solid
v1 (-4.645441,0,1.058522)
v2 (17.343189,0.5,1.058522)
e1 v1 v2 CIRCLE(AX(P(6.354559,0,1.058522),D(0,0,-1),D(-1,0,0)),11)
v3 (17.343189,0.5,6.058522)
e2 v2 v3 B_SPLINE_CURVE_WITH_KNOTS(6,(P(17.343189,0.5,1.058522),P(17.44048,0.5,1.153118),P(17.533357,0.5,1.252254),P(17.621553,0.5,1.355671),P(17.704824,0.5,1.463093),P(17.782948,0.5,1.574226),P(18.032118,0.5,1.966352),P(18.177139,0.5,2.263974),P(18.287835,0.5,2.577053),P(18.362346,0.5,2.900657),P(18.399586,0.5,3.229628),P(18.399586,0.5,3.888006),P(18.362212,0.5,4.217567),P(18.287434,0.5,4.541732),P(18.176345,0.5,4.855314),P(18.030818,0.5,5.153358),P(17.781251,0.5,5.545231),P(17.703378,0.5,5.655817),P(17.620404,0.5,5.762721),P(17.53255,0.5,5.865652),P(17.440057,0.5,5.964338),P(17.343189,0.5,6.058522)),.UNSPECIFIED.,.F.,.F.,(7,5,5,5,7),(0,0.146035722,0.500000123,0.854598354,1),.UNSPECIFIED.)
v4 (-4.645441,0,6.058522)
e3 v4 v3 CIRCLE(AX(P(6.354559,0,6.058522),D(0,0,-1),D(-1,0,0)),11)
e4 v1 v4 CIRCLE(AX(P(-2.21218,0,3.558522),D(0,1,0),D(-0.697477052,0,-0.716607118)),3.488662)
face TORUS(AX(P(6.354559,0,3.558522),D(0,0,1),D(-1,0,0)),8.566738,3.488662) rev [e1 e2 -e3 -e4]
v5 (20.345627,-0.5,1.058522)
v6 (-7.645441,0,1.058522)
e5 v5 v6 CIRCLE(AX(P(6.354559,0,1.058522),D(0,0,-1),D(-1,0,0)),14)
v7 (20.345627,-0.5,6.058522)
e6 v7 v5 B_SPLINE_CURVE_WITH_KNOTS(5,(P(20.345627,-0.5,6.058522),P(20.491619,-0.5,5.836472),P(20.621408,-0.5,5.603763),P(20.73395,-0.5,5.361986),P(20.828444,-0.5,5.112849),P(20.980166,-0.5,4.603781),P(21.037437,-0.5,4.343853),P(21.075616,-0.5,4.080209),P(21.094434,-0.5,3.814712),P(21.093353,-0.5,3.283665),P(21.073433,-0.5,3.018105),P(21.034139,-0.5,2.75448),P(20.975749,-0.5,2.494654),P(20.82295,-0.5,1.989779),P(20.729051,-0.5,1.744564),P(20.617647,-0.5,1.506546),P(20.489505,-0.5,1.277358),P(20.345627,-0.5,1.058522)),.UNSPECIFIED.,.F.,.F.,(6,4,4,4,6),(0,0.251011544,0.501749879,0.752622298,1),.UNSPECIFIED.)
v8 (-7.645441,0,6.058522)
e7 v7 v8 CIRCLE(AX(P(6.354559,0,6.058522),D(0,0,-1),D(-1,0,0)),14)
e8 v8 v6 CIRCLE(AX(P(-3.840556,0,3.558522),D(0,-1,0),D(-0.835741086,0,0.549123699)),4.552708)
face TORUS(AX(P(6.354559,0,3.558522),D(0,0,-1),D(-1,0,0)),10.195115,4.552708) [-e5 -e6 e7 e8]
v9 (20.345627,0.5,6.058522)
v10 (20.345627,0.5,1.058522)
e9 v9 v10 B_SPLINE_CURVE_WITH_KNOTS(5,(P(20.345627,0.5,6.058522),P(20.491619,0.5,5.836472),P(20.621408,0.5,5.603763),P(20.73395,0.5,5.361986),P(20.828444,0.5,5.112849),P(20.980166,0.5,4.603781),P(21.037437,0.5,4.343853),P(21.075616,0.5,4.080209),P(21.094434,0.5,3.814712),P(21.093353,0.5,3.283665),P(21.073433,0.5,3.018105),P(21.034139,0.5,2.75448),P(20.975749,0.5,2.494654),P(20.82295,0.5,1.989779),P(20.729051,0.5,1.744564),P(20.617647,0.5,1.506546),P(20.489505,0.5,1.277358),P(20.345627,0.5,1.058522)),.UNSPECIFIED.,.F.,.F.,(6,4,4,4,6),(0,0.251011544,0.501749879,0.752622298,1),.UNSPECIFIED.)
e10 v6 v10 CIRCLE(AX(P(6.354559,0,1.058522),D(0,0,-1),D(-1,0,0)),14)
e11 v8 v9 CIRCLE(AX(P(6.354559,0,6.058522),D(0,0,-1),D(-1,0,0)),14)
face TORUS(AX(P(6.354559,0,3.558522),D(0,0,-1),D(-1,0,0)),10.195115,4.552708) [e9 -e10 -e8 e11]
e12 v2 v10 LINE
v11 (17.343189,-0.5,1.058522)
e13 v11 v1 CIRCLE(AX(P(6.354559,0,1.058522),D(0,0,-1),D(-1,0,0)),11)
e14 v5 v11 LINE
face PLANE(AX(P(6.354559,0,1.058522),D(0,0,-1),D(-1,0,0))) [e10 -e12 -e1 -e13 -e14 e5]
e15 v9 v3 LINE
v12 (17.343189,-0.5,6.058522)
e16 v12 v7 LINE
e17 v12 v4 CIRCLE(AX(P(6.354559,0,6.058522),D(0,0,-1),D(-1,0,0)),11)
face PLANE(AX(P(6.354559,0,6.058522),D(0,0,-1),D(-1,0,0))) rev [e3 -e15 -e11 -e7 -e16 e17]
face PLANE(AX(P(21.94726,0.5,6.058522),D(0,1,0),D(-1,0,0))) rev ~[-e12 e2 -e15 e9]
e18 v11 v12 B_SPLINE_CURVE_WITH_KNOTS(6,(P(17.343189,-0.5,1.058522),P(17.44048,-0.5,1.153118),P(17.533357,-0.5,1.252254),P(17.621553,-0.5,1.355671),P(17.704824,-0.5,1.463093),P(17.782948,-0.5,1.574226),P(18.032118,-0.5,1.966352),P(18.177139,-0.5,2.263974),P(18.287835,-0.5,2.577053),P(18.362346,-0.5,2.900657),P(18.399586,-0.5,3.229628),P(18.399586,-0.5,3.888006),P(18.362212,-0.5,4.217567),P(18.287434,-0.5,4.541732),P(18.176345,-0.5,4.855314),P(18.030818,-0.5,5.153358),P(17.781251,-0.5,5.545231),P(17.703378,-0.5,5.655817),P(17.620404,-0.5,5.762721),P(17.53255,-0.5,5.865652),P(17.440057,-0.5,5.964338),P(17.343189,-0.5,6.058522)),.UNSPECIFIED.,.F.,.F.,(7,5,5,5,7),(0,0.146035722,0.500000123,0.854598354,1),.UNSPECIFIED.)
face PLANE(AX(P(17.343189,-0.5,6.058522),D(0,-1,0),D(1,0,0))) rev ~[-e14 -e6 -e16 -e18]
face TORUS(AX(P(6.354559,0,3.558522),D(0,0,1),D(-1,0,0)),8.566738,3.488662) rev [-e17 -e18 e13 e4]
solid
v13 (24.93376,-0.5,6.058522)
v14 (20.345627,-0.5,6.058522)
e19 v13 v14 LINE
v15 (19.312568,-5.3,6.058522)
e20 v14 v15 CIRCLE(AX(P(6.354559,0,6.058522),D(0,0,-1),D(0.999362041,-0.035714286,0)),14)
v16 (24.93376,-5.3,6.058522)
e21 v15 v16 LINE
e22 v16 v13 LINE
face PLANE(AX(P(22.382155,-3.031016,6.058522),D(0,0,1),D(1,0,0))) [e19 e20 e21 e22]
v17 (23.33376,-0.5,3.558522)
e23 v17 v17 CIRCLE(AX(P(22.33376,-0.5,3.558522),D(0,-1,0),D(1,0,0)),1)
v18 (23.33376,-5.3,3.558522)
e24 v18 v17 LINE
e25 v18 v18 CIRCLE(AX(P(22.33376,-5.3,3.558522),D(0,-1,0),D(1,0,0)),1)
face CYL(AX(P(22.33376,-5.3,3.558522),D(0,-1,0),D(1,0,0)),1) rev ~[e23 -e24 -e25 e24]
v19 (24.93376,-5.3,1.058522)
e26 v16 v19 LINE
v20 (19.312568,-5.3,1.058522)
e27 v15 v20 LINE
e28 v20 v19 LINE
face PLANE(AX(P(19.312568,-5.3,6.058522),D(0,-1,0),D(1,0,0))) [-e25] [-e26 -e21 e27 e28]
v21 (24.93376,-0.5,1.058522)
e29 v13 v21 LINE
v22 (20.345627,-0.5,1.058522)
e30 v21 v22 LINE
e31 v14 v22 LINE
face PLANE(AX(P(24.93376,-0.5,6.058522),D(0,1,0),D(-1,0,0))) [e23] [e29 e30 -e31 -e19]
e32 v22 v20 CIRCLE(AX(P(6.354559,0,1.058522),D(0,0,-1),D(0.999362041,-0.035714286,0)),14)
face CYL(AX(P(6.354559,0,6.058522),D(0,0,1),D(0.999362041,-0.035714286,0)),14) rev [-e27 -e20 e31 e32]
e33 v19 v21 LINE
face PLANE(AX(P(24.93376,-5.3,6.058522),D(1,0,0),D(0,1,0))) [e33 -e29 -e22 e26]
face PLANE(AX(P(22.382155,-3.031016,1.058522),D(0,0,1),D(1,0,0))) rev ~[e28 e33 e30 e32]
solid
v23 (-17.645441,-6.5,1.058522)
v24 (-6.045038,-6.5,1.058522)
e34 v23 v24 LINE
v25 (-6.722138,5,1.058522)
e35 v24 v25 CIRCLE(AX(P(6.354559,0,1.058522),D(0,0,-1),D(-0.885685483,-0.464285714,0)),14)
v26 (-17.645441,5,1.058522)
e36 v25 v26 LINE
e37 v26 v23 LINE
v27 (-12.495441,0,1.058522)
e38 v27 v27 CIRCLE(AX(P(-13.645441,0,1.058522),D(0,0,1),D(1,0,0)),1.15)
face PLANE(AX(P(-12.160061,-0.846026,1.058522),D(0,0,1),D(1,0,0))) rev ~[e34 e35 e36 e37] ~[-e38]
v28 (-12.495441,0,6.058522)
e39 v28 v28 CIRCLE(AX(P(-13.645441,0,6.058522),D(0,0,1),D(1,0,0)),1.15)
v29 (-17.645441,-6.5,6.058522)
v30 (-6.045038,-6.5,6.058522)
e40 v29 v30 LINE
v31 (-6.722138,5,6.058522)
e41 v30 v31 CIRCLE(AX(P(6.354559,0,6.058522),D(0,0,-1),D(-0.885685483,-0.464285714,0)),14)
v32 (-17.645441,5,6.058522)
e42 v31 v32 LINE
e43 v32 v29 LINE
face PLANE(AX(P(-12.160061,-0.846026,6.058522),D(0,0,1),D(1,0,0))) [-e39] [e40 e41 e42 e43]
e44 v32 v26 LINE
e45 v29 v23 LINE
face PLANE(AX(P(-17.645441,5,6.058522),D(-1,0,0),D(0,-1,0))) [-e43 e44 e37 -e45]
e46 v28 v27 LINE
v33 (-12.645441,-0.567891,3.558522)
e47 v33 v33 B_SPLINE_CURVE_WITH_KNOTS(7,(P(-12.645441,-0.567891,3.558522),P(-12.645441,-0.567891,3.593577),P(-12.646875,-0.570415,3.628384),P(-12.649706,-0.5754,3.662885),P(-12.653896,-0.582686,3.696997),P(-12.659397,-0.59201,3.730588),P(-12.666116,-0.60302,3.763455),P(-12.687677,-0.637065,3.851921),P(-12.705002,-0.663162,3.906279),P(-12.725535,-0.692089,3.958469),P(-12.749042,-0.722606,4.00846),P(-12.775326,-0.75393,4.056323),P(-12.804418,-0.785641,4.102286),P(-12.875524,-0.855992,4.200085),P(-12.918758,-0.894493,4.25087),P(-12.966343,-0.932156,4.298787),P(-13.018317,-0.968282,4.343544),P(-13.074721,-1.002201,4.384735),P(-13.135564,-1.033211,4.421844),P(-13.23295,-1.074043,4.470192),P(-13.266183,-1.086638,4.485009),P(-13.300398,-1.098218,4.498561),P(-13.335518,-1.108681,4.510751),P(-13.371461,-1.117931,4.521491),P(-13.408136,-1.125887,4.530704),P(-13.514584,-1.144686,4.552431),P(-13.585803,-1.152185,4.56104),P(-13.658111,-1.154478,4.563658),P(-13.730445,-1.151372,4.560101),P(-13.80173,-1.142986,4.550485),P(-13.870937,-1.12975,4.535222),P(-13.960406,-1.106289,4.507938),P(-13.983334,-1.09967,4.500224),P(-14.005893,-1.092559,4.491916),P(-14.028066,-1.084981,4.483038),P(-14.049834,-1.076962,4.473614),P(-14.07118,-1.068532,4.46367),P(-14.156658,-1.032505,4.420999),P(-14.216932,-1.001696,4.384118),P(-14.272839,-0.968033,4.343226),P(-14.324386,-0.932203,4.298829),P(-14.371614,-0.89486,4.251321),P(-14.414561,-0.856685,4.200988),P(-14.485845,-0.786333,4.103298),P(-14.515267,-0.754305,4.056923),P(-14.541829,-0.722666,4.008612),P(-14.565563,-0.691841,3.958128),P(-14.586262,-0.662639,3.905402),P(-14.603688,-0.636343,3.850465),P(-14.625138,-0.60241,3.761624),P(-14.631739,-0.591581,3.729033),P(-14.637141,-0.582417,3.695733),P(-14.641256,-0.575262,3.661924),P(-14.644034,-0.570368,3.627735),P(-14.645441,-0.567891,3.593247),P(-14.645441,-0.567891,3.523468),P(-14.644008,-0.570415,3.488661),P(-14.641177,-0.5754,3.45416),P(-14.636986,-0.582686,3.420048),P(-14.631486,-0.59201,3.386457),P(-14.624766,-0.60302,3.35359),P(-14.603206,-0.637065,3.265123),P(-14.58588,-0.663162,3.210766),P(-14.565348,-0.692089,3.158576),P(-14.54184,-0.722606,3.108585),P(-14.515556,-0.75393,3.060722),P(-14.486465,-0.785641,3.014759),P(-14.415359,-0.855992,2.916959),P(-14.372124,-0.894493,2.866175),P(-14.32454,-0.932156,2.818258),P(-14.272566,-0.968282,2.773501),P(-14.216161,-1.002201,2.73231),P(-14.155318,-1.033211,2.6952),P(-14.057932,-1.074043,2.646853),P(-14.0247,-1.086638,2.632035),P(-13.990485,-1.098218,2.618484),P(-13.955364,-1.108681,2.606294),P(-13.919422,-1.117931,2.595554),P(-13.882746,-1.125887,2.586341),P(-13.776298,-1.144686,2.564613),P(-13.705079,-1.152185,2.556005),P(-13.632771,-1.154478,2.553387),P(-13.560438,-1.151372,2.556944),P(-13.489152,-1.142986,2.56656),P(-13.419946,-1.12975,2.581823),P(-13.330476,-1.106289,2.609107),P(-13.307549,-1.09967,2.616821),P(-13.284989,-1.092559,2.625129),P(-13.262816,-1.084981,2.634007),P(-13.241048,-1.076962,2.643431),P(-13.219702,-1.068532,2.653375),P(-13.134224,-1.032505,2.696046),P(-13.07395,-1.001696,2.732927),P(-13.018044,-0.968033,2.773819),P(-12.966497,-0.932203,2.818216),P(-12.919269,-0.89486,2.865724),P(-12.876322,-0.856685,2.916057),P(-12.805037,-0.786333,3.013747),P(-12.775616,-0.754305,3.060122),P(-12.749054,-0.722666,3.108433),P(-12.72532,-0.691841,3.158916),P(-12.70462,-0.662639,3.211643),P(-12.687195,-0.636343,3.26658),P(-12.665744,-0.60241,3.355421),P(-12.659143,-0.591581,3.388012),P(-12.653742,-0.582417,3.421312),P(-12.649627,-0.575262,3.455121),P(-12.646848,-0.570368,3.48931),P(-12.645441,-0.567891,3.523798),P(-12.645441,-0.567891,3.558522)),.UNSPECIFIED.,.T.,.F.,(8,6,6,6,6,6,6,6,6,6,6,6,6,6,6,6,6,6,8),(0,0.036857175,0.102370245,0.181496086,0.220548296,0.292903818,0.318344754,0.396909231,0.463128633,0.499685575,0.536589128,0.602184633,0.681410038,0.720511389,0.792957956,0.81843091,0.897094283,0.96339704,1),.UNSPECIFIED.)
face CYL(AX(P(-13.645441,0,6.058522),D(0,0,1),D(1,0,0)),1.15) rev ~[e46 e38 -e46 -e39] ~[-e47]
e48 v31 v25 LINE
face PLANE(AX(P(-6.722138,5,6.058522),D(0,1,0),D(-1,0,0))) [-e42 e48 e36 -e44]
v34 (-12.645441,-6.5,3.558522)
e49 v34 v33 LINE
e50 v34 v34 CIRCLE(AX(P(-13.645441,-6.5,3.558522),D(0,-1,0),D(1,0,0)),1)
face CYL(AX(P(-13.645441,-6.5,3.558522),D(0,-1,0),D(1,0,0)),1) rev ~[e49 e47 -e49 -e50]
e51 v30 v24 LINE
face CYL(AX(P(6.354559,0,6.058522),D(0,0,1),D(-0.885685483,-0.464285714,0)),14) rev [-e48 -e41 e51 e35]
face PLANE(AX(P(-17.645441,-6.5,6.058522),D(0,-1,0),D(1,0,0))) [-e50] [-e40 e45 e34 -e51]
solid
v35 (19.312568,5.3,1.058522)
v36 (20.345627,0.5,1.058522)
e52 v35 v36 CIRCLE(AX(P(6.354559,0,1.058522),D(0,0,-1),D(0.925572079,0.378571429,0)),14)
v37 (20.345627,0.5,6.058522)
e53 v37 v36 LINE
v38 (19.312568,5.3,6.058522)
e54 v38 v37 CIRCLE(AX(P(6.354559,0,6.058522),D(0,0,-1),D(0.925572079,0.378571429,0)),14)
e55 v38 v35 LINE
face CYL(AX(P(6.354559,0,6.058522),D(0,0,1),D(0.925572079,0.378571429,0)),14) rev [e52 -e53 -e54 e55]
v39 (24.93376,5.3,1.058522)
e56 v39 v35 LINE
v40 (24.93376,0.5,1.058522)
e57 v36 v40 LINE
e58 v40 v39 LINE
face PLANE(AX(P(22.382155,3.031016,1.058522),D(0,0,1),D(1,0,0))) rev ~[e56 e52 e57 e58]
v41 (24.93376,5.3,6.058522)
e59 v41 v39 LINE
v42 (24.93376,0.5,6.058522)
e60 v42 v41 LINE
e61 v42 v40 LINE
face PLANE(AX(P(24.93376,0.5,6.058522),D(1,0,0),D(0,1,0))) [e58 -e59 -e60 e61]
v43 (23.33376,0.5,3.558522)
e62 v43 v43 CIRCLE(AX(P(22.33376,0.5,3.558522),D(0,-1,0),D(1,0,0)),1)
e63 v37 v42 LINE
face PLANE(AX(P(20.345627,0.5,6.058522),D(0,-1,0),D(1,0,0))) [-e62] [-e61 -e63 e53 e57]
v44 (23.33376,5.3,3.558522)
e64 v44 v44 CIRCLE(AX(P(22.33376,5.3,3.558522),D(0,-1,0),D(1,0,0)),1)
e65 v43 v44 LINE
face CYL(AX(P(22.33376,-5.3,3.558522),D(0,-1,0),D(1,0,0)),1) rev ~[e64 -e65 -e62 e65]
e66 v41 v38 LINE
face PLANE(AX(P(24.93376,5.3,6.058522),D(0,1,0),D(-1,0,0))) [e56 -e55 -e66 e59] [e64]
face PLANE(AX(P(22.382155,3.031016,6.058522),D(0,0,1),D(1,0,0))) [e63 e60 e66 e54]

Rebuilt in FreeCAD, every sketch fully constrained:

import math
import FreeCAD as App
import Part
import Sketcher
Q = App.Units.Quantity

doc = App.newDocument("Part")
body = doc.addObject("PartDesign::Body", "Body")

# Sketch on XZ plane
sketch1 = body.newObject("Sketcher::SketchObject", "Sketch")
sketch1.AttachmentSupport = (doc.getObject("XZ_Plane"), [""])
sketch1.MapMode = "FlatFace"
sketch1.addGeometry([
    Part.ArcOfCircle(Part.Circle(App.Vector(-2.2, 3.6, 0), App.Vector(0, 0, 1), 3.5), math.radians(134), math.radians(226)),
    Part.LineSegment(App.Vector(-4.6, 6.1, 0), App.Vector(-7.6, 6.1, 0)),
    Part.ArcOfCircle(Part.Circle(App.Vector(-3.8, 3.6, 0), App.Vector(0, 0, 1), 4.6), math.radians(147), math.radians(213)),
    Part.LineSegment(App.Vector(-7.6, 1.1, 0), App.Vector(-4.6, 1.1, 0)),
], False)
sketch1.addGeometry(Part.LineSegment(App.Vector(6.4, 6.1, 0), App.Vector(6.4, 1.1, 0)), True)  # axis
sketch1.addConstraint([
    Sketcher.Constraint("Coincident", 0, 1, 1, 1),
    Sketcher.Constraint("Coincident", 1, 2, 2, 1),
    Sketcher.Constraint("Coincident", 2, 2, 3, 1),
    Sketcher.Constraint("Coincident", 3, 2, 0, 2),
    Sketcher.Constraint("Horizontal", 1),
    Sketcher.Constraint("Horizontal", 3),
    Sketcher.Constraint("Vertical", 4),
    Sketcher.Constraint("Horizontal", 0, 3, 2, 3),
    Sketcher.Constraint("Horizontal", 1, 2, 4, 1),
    Sketcher.Constraint("Horizontal", 3, 2, 4, 2),
    Sketcher.Constraint("Vertical", 1, 2, 2, 2),
    Sketcher.Constraint("DistanceX", 1, 2, 1, 1, Q("3 mm")),
    Sketcher.Constraint("DistanceY", 4, 2, 4, 1, Q("5 mm")),
    Sketcher.Constraint("DistanceX", 0, 1, 4, 1, Q("11 mm")),
    Sketcher.Constraint("Radius", 0, Q("3.488662 mm")),
    Sketcher.Constraint("Radius", 2, Q("4.552708 mm")),
    Sketcher.Constraint("DistanceX", 0, 3, -1, 1, Q("2.21218 mm")),
    Sketcher.Constraint("DistanceY", -1, 1, 0, 3, Q("3.558522 mm")),
])
revolution = body.newObject("PartDesign::Revolution", "Revolution")
revolution.Profile = sketch1
revolution.ReferenceAxis = (sketch1, ["Axis0"])
revolution.Angle = 360

# Sketch on XZ plane
sketch2 = body.newObject("Sketcher::SketchObject", "Sketch001")
sketch2.AttachmentSupport = (doc.getObject("XZ_Plane"), [""])
sketch2.MapMode = "FlatFace"
sketch2.AttachmentOffset = App.Placement(App.Vector(0, 0, -5.3), App.Rotation())
sketch2.addGeometry(Part.Circle(App.Vector(22.3, 3.6, 0), App.Vector(0, 0, 1), 1), False)
sketch2.addConstraint([
    Sketcher.Constraint("Diameter", 0, Q("2 mm")),
    Sketcher.Constraint("DistanceX", -1, 1, 0, 3, Q("22.33376 mm")),
    Sketcher.Constraint("DistanceY", -1, 1, 0, 3, Q("3.558522 mm")),
])
pocket1 = body.newObject("PartDesign::Pocket", "Pocket")
pocket1.Profile = sketch2
pocket1.Length = 25
pocket1.Reversed = True

# Sketch on XY plane
sketch3 = body.newObject("Sketcher::SketchObject", "Sketch002")
sketch3.AttachmentSupport = (doc.getObject("XY_Plane"), [""])
sketch3.MapMode = "FlatFace"
sketch3.AttachmentOffset = App.Placement(App.Vector(0, 0, 6.058522), App.Rotation())
sketch3.addGeometry([
    Part.ArcOfCircle(Part.Circle(App.Vector(6.4, 0, 0), App.Vector(0, 0, 1), 11), math.radians(0), math.radians(2.61)),  # 0
    Part.ArcOfCircle(Part.Circle(App.Vector(6.4, 0, 0), App.Vector(0, 0, 1), 11), math.radians(-2.61), math.radians(0)),  # 1
    Part.LineSegment(App.Vector(17.3, -0.5, 0), App.Vector(21.9, -0.5, 0)),  # 2
    Part.LineSegment(App.Vector(21.9, -0.5, 0), App.Vector(21.9, 0.5, 0)),  # 3
    Part.LineSegment(App.Vector(21.9, 0.5, 0), App.Vector(17.3, 0.5, 0)),  # 4
], False)
sketch3.addConstraint([
    Sketcher.Constraint("Tangent", 0, 1, 1, 2),
    Sketcher.Constraint("Coincident", 1, 1, 2, 1),
    Sketcher.Constraint("Coincident", 2, 2, 3, 1),
    Sketcher.Constraint("Coincident", 3, 2, 4, 1),
    Sketcher.Constraint("Coincident", 4, 2, 0, 2),
    Sketcher.Constraint("Horizontal", 2),
    Sketcher.Constraint("Vertical", 3),
    Sketcher.Constraint("Horizontal", 4),
    Sketcher.Constraint("Equal", 0, 1),
    Sketcher.Constraint("Symmetric", 1, 1, 4, 2, -1),
    Sketcher.Constraint("PointOnObject", 0, 1, -1),
    Sketcher.Constraint("Radius", 0, Q("11 mm")),
    Sketcher.Constraint("DistanceY", 3, 1, 3, 2, Q("1 mm")),
    Sketcher.Constraint("DistanceX", 2, 1, 2, 2, Q("4.604071 mm")),
    Sketcher.Constraint("DistanceX", -1, 1, 0, 3, Q("6.354559 mm")),
])
pocket2 = body.newObject("PartDesign::Pocket", "Pocket001")
pocket2.Profile = sketch3
pocket2.Length = 25
body2 = doc.addObject("PartDesign::Body", "Body001")

# Sketch on XY plane
sketch4 = body2.newObject("Sketcher::SketchObject", "Sketch003")
sketch4.AttachmentSupport = (doc.getObject("XY_Plane001"), [""])
sketch4.MapMode = "FlatFace"
sketch4.AttachmentOffset = App.Placement(App.Vector(0, 0, 6.058522), App.Rotation())
sketch4.addGeometry([
    Part.LineSegment(App.Vector(-17.6, -6.5, 0), App.Vector(-6, -6.5, 0)),  # 0
    Part.ArcOfCircle(Part.Circle(App.Vector(6.4, 0, 0), App.Vector(0, 0, 1), 14), math.radians(159), math.radians(208)),  # 1
    Part.LineSegment(App.Vector(-6.7, 5, 0), App.Vector(-17.6, 5, 0)),  # 2
    Part.LineSegment(App.Vector(-17.6, 5, 0), App.Vector(-17.6, -6.5, 0)),  # 3
    Part.Circle(App.Vector(-13.6, 0, 0), App.Vector(0, 0, 1), 1.1),  # 4
], False)
sketch4.addConstraint([
    Sketcher.Constraint("Coincident", 0, 2, 1, 2),
    Sketcher.Constraint("Coincident", 1, 1, 2, 1),
    Sketcher.Constraint("Coincident", 2, 2, 3, 1),
    Sketcher.Constraint("Coincident", 3, 2, 0, 1),
    Sketcher.Constraint("Horizontal", 0),
    Sketcher.Constraint("Horizontal", 2),
    Sketcher.Constraint("Vertical", 3),
    Sketcher.Constraint("PointOnObject", 1, 3, -1),
    Sketcher.Constraint("PointOnObject", 4, 3, -1),
    Sketcher.Constraint("Radius", 1, Q("14 mm")),
    Sketcher.Constraint("Diameter", 4, Q("2.3 mm")),
    Sketcher.Constraint("DistanceY", 3, 2, 3, 1, Q("11.5 mm")),
    Sketcher.Constraint("DistanceY", -1, 1, 1, 1, Q("5 mm")),
    Sketcher.Constraint("DistanceX", 4, 3, 1, 3, Q("20 mm")),
    Sketcher.Constraint("DistanceX", 2, 2, 4, 3, Q("4 mm")),
    Sketcher.Constraint("DistanceX", -1, 1, 1, 3, Q("6.354559 mm")),
])
pad1 = body2.newObject("PartDesign::Pad", "Pad")
pad1.Profile = sketch4
pad1.Length = 5
pad1.Reversed = True

# Sketch on XZ plane
sketch5 = body2.newObject("Sketcher::SketchObject", "Sketch004")
sketch5.AttachmentSupport = (doc.getObject("XZ_Plane001"), [""])
sketch5.MapMode = "FlatFace"
sketch5.AttachmentOffset = App.Placement(App.Vector(0, 0, 6.5), App.Rotation())
sketch5.addGeometry(Part.Circle(App.Vector(-13.6, 3.6, 0), App.Vector(0, 0, 1), 1), False)
sketch5.addConstraint([
    Sketcher.Constraint("Diameter", 0, Q("2 mm")),
    Sketcher.Constraint("DistanceX", 0, 3, -1, 1, Q("13.645441 mm")),
    Sketcher.Constraint("DistanceY", -1, 1, 0, 3, Q("3.558522 mm")),
])
pocket3 = body2.newObject("PartDesign::Pocket", "Pocket002")
pocket3.Profile = sketch5
pocket3.Length = 6
body3 = doc.addObject("PartDesign::Body", "Body002")

# Sketch on XY plane
sketch6 = body3.newObject("Sketcher::SketchObject", "Sketch005")
sketch6.AttachmentSupport = (doc.getObject("XY_Plane002"), [""])
sketch6.MapMode = "FlatFace"
sketch6.AttachmentOffset = App.Placement(App.Vector(0, 0, 6.058522), App.Rotation())
sketch6.addGeometry([
    Part.LineSegment(App.Vector(24.9, -0.5, 0), App.Vector(20.3, -0.5, 0)),
    Part.ArcOfCircle(Part.Circle(App.Vector(6.4, 0, 0), App.Vector(0, 0, 1), 14), math.radians(-22), math.radians(-2)),
    Part.LineSegment(App.Vector(19.3, -5.3, 0), App.Vector(24.9, -5.3, 0)),
    Part.LineSegment(App.Vector(24.9, -5.3, 0), App.Vector(24.9, -0.5, 0)),
], False)
sketch6.addConstraint([
    Sketcher.Constraint("Coincident", 0, 2, 1, 2),
    Sketcher.Constraint("Coincident", 1, 1, 2, 1),
    Sketcher.Constraint("Coincident", 2, 2, 3, 1),
    Sketcher.Constraint("Coincident", 3, 2, 0, 1),
    Sketcher.Constraint("Horizontal", 0),
    Sketcher.Constraint("Horizontal", 2),
    Sketcher.Constraint("Vertical", 3),
    Sketcher.Constraint("PointOnObject", 1, 3, -1),
    Sketcher.Constraint("Radius", 1, Q("14 mm")),
    Sketcher.Constraint("DistanceY", 3, 1, 3, 2, Q("4.8 mm")),
    Sketcher.Constraint("DistanceY", 0, 2, -1, 1, Q("0.5 mm")),
    Sketcher.Constraint("DistanceX", 1, 3, 2, 2, Q("18.579202 mm")),
    Sketcher.Constraint("DistanceX", -1, 1, 1, 3, Q("6.354559 mm")),
])
pad2 = body3.newObject("PartDesign::Pad", "Pad001")
pad2.Profile = sketch6
pad2.Length = 5
pad2.Reversed = True
body4 = doc.addObject("PartDesign::Body", "Body003")

# Sketch on XY plane
sketch7 = body4.newObject("Sketcher::SketchObject", "Sketch006")
sketch7.AttachmentSupport = (doc.getObject("XY_Plane003"), [""])
sketch7.MapMode = "FlatFace"
sketch7.AttachmentOffset = App.Placement(App.Vector(0, 0, 6.058522), App.Rotation())
sketch7.addGeometry([
    Part.ArcOfCircle(Part.Circle(App.Vector(6.4, 0, 0), App.Vector(0, 0, 1), 14), math.radians(2), math.radians(22)),
    Part.LineSegment(App.Vector(20.3, 0.5, 0), App.Vector(24.9, 0.5, 0)),
    Part.LineSegment(App.Vector(24.9, 0.5, 0), App.Vector(24.9, 5.3, 0)),
    Part.LineSegment(App.Vector(24.9, 5.3, 0), App.Vector(19.3, 5.3, 0)),
], False)
sketch7.addConstraint([
    Sketcher.Constraint("Coincident", 0, 1, 1, 1),
    Sketcher.Constraint("Coincident", 1, 2, 2, 1),
    Sketcher.Constraint("Coincident", 2, 2, 3, 1),
    Sketcher.Constraint("Coincident", 3, 2, 0, 2),
    Sketcher.Constraint("Horizontal", 1),
    Sketcher.Constraint("Vertical", 2),
    Sketcher.Constraint("Horizontal", 3),
    Sketcher.Constraint("PointOnObject", 0, 3, -1),
    Sketcher.Constraint("Radius", 0, Q("14 mm")),
    Sketcher.Constraint("DistanceY", 2, 1, 2, 2, Q("4.8 mm")),
    Sketcher.Constraint("DistanceY", -1, 1, 0, 1, Q("0.5 mm")),
    Sketcher.Constraint("DistanceX", 0, 3, 1, 2, Q("18.579202 mm")),
    Sketcher.Constraint("DistanceX", -1, 1, 0, 3, Q("6.354559 mm")),
])
pad3 = body4.newObject("PartDesign::Pad", "Pad002")
pad3.Profile = sketch7
pad3.Length = 5
pad3.Reversed = True
body5 = doc.addObject("PartDesign::Body", "Body004")

# Sketch on XZ plane
sketch8 = body5.newObject("Sketcher::SketchObject", "Sketch007")
sketch8.AttachmentSupport = (doc.getObject("XZ_Plane004"), [""])
sketch8.MapMode = "FlatFace"
sketch8.AttachmentOffset = App.Placement(App.Vector(0, 0, 5.3), App.Rotation())
sketch8.addGeometry(Part.Circle(App.Vector(22.3, 3.6, 0), App.Vector(0, 0, 1), 1), False)
sketch8.addConstraint([
    Sketcher.Constraint("Diameter", 0, Q("2 mm")),
    Sketcher.Constraint("DistanceX", -1, 1, 0, 3, Q("22.33376 mm")),
    Sketcher.Constraint("DistanceY", -1, 1, 0, 3, Q("3.558522 mm")),
])
pad4 = body5.newObject("PartDesign::Pad", "Pad003")
pad4.Profile = sketch8
pad4.Length = 25
pad4.Reversed = True
doc.recompute()

body6 = doc.addObject("PartDesign::Body", "Body005")
body6.BaseFeature = body5
boolean = body3.newObject("PartDesign::Boolean", "Boolean")
boolean.Type = "Cut"
boolean.addObjects([body6])
doc.recompute()

boolean2 = body4.newObject("PartDesign::Boolean", "Boolean001")
boolean2.Type = "Cut"
boolean2.addObjects([body5])

doc.recompute()
